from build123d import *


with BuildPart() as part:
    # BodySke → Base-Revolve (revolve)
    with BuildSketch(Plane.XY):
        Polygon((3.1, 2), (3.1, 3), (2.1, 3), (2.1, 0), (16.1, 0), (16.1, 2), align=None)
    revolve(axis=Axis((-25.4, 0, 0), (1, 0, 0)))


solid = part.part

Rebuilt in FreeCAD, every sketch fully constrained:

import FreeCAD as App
import Part
import Sketcher
from FreeCAD import Vector
Q = App.Units.Quantity


def add_polygon(sketch, points):
    """Adds a closed chain of lines whose ends are joined by coincident constraints."""
    first, n = sketch.GeometryCount, len(points)
    for a, b in zip(points, points[1:] + points[:1]):
        sketch.addGeometry(Part.LineSegment(App.Vector(*a, 0), App.Vector(*b, 0)), False)
    for i in range(n):
        sketch.addConstraint(Sketcher.Constraint("Coincident", first + i, 2, first + (i + 1) % n, 1))

doc = App.newDocument("Part")
body = doc.addObject("PartDesign::Body", "Body")

# Sketch on XY plane
sketch1 = body.newObject("Sketcher::SketchObject", "Sketch")
sketch1.AttachmentSupport = (doc.getObject("XY_Plane"), [""])
sketch1.MapMode = "FlatFace"
add_polygon(sketch1, [(3.1, 2), (3.1, 3), (2.1, 3), (2.1, 0), (16.1, 0), (16.1, 2)])  # lines 0-5
sketch1.addConstraint(Sketcher.Constraint("Vertical", 0))
sketch1.addConstraint(Sketcher.Constraint("Horizontal", 1))
sketch1.addConstraint(Sketcher.Constraint("Vertical", 2))
sketch1.addConstraint(Sketcher.Constraint("Horizontal", 3))
sketch1.addConstraint(Sketcher.Constraint("Vertical", 4))
sketch1.addConstraint(Sketcher.Constraint("Horizontal", 5))
sketch1.addConstraint(Sketcher.Constraint("PointOnObject", 2, 2, -1))
sketch1.addConstraint(Sketcher.Constraint("Equal", 1, 0))
sketch1.addConstraint(Sketcher.Constraint("DistanceX", 1, 2, 1, 1, Q("1 mm")))
sketch1.addConstraint(Sketcher.Constraint("DistanceX", 3, 1, 3, 2, Q("14 mm")))
sketch1.addConstraint(Sketcher.Constraint("DistanceY", 2, 2, 2, 1, Q("3 mm")))
sketch1.addConstraint(Sketcher.Constraint("DistanceX", -1, 1, 0, 2, Q("3.1 mm")))
revolution = body.newObject("PartDesign::Revolution", "Revolution")
revolution.Profile = sketch1
revolution.ReferenceAxis = (sketch1, ["H_Axis"])
revolution.Angle = 360

doc.recompute()
